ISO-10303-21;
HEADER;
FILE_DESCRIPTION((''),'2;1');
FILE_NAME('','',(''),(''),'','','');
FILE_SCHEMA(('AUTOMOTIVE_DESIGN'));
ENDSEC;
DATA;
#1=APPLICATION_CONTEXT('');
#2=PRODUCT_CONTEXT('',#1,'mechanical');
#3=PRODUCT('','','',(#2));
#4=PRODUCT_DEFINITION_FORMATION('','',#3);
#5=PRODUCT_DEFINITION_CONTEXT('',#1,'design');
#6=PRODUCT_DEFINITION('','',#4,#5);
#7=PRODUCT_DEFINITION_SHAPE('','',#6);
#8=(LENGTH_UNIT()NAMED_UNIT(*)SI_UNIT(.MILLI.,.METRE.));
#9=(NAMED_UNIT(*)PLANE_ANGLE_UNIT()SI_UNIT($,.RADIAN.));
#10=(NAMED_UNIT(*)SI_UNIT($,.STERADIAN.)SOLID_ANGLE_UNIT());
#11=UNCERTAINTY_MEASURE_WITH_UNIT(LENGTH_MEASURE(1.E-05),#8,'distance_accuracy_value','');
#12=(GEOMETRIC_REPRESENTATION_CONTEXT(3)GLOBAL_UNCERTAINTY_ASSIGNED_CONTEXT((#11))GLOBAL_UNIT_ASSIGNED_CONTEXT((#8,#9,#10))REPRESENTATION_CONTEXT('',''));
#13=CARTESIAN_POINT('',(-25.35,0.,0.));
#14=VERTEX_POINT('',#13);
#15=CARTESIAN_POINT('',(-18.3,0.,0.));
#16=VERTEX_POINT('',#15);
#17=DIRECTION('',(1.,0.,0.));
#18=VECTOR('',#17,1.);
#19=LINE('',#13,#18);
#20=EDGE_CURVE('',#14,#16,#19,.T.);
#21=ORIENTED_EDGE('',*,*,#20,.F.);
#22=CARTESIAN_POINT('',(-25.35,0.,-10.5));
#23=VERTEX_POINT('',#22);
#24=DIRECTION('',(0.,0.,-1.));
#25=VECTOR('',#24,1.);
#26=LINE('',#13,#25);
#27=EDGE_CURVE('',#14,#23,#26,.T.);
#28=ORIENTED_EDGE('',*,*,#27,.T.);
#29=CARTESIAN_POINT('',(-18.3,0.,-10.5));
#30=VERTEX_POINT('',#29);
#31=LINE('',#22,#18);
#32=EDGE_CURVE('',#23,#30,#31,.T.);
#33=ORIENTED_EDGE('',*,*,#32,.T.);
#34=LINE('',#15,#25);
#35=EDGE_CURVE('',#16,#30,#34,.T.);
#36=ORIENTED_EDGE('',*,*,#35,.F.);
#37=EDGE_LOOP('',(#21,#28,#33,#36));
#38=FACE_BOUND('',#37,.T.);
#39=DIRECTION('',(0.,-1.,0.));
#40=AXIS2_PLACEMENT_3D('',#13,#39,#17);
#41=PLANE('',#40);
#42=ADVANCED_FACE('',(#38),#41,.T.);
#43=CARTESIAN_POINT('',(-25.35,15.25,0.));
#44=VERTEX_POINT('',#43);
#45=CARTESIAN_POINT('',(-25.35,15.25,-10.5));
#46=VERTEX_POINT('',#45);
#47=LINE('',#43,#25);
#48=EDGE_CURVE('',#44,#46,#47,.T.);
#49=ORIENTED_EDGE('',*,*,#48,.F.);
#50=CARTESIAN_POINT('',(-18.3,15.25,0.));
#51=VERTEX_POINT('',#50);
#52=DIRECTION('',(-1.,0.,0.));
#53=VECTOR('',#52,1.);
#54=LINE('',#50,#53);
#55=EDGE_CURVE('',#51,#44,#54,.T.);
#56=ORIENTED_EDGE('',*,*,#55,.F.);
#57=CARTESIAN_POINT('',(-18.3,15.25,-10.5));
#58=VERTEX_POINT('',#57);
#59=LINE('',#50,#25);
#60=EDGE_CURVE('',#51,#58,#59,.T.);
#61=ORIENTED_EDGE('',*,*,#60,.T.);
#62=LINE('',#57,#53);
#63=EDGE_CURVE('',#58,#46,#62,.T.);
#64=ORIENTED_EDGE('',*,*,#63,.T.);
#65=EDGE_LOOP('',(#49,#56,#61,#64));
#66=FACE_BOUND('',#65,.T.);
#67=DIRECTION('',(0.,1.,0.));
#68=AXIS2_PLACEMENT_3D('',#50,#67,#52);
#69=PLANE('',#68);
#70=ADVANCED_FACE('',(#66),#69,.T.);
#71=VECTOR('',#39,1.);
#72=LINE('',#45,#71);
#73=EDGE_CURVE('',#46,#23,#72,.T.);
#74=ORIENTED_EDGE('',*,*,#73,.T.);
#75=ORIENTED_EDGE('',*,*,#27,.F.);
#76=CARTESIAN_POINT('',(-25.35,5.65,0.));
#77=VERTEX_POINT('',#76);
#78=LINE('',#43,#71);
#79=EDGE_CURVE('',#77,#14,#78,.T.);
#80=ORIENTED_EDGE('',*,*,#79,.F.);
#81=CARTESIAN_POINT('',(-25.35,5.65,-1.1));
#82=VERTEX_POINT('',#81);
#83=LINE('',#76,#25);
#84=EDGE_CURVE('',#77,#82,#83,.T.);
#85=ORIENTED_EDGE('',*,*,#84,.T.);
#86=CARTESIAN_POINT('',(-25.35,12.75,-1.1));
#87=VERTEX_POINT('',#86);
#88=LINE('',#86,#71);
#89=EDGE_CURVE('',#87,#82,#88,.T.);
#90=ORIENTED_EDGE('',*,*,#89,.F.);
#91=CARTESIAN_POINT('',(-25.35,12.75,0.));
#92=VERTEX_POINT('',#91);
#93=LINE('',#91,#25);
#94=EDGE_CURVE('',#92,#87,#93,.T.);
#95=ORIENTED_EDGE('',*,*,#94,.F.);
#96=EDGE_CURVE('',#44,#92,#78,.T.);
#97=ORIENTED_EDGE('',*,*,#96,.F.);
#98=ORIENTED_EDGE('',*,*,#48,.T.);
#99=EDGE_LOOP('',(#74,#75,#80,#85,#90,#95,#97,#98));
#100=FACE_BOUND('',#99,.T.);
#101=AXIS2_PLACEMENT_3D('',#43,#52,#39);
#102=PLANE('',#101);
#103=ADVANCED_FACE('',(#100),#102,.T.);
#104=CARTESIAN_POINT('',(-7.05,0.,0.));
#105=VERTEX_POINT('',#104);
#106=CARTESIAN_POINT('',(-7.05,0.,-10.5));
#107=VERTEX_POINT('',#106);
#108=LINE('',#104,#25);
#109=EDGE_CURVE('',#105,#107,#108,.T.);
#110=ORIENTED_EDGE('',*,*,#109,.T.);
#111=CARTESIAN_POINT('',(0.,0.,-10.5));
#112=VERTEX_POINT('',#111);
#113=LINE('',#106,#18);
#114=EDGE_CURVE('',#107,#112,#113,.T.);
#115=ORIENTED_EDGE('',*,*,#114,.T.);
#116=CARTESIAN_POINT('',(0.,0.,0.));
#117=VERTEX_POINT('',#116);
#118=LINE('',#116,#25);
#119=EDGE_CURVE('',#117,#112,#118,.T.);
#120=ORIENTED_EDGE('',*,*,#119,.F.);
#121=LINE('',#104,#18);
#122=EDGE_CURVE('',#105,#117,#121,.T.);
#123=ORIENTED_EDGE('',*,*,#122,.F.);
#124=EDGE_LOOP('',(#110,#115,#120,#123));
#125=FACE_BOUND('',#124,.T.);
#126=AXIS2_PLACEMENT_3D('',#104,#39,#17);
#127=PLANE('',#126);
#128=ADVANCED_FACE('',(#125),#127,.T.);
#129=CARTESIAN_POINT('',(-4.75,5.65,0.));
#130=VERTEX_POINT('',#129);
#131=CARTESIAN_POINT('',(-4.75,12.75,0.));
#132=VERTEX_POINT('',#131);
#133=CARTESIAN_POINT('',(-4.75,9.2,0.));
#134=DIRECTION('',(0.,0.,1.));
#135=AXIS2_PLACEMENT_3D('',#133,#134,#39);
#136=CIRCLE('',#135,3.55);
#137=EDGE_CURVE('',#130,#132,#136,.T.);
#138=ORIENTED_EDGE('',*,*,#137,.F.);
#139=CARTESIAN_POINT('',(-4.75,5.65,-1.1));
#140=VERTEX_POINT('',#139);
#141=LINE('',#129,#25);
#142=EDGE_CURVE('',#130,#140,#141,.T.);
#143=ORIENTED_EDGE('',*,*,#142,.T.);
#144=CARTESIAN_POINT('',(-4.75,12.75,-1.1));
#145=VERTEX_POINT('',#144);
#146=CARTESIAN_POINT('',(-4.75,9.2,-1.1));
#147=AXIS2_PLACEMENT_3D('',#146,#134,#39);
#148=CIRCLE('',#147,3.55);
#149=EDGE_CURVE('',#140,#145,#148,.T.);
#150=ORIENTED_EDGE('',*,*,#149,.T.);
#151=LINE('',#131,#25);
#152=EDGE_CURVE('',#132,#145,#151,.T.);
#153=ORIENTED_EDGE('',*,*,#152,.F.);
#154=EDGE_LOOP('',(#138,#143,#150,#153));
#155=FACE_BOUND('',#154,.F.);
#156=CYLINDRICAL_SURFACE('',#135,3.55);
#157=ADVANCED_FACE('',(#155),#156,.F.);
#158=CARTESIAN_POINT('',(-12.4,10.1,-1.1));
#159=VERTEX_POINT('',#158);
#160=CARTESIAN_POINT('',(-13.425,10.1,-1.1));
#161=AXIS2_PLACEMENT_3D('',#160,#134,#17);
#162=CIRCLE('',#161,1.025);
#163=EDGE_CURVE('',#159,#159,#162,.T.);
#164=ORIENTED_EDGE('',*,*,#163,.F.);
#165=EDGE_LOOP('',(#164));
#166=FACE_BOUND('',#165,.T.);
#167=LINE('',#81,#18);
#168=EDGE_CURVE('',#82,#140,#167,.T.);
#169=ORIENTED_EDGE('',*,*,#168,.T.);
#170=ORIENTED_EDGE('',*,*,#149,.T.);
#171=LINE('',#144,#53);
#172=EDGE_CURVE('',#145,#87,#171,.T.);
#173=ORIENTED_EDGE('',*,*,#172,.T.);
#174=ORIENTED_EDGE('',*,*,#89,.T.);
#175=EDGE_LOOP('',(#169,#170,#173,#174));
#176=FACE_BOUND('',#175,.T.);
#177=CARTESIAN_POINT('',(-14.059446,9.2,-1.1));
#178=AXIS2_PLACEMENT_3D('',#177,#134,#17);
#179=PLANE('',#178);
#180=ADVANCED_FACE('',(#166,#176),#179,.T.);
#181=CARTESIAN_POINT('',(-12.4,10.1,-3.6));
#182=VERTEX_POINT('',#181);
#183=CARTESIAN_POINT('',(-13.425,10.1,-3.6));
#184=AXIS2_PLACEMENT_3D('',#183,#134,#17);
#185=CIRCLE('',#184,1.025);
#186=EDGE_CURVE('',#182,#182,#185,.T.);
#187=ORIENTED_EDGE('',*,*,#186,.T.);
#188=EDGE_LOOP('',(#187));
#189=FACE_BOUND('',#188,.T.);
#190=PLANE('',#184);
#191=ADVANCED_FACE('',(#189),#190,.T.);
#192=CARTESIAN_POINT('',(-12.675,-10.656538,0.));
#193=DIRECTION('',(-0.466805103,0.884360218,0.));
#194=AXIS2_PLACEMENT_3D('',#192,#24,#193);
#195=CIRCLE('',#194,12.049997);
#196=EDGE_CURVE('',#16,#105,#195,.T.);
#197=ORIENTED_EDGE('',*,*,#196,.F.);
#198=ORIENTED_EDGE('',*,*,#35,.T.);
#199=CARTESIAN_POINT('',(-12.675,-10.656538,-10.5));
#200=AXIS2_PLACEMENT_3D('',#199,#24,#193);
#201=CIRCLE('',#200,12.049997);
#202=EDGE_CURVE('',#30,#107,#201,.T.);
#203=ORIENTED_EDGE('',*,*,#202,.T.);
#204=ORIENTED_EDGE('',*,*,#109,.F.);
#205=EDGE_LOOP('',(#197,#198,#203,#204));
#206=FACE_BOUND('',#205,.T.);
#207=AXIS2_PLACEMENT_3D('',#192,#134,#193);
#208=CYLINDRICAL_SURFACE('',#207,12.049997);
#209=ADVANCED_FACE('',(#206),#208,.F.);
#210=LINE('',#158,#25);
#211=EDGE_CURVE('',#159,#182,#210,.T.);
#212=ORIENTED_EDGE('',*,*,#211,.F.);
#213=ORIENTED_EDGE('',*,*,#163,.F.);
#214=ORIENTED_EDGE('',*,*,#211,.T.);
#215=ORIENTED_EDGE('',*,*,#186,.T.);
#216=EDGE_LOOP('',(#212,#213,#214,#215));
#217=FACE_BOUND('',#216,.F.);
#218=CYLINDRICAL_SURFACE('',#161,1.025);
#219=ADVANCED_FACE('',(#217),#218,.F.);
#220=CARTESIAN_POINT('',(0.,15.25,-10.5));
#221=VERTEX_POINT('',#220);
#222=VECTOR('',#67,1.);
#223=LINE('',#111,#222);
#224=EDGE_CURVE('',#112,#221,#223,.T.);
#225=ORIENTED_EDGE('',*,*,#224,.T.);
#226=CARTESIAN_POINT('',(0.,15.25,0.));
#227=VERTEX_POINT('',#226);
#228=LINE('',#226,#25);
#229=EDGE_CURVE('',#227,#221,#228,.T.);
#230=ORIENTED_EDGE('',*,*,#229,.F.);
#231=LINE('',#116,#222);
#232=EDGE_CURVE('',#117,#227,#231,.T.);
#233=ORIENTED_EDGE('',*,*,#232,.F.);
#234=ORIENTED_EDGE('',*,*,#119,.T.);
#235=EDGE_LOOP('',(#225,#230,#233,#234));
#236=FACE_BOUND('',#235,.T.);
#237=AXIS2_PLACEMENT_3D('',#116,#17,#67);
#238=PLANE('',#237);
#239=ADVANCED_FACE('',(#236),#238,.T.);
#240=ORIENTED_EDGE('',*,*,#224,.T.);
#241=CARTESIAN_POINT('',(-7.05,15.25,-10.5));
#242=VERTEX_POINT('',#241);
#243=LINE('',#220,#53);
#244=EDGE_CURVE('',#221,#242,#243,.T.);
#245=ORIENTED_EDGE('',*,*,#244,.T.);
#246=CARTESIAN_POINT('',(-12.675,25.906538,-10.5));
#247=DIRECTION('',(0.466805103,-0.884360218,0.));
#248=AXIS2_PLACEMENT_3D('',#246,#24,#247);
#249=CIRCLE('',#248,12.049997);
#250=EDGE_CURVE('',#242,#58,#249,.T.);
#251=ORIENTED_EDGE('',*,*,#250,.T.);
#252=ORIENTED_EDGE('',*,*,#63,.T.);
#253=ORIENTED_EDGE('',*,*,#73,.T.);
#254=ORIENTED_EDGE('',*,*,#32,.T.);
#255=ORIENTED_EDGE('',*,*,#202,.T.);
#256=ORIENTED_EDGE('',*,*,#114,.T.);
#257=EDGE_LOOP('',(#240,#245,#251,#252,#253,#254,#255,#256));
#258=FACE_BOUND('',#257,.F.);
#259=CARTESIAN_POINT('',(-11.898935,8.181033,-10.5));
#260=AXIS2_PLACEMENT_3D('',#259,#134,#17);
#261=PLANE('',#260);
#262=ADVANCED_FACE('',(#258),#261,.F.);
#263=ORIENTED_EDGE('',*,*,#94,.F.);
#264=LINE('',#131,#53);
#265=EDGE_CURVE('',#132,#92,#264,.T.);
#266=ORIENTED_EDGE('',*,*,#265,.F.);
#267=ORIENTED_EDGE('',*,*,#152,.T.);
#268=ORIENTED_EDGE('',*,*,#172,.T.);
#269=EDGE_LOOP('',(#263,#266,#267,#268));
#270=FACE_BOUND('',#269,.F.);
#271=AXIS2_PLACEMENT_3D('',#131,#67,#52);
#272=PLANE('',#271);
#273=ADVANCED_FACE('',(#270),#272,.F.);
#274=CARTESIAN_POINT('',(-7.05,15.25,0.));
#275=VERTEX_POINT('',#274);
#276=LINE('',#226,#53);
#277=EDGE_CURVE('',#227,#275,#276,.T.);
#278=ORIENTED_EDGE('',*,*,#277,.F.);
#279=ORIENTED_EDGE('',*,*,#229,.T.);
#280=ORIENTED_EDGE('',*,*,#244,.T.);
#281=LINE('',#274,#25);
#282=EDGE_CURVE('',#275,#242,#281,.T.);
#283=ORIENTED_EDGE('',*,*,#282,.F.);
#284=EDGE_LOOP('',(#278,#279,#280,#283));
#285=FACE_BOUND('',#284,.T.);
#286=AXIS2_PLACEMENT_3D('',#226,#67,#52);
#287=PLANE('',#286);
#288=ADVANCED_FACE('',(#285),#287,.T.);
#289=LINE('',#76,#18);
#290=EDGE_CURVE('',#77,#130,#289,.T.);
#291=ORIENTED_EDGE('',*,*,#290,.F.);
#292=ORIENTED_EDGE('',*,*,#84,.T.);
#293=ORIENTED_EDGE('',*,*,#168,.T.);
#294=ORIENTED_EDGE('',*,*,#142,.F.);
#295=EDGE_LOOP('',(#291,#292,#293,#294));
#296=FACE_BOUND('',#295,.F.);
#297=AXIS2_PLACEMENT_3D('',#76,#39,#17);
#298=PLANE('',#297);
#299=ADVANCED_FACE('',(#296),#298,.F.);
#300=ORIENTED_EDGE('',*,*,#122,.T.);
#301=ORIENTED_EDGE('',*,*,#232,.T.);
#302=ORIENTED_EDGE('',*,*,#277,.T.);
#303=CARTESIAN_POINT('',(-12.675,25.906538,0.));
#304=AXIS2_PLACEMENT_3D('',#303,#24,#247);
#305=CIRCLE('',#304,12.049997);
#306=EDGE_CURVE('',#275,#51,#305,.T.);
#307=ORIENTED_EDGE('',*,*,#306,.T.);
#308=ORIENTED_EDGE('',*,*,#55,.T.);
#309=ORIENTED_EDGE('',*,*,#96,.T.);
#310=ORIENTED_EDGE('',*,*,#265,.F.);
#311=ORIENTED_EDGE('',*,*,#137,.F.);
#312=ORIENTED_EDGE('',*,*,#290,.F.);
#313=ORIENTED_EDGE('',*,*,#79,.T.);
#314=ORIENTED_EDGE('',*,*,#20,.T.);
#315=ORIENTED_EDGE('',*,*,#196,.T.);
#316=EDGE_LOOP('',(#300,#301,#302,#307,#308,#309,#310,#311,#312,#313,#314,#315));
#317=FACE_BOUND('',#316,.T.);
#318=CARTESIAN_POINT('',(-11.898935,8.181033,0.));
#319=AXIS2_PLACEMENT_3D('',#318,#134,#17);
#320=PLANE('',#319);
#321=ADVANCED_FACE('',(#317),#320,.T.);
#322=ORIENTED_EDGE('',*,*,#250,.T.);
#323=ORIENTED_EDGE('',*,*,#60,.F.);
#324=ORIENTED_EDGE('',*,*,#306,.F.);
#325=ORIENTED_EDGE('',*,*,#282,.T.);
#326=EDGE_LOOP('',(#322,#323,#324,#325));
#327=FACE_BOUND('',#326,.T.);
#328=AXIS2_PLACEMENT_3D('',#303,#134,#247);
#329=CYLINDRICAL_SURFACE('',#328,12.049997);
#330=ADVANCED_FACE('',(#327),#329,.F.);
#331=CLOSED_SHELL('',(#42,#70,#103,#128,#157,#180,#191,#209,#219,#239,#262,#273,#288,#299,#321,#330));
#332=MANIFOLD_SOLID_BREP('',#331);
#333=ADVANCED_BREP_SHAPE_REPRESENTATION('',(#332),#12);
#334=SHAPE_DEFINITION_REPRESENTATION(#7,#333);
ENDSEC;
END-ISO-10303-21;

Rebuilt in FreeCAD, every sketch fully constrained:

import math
import FreeCAD as App
import Part
import Sketcher

V = App.Vector
Q = App.Units.Quantity

doc = App.newDocument("Part")
params = doc.addObject("Spreadsheet::Sheet", "Params")
for row, (alias, value) in enumerate([
    ("sketch1_width", "7.05 mm"),
    ("sketch1_height", "15.25 mm"),
    ("pad1_length", "10.5 mm"),
    ("sketch2_radius", "3.55 mm"),
    ("sketch2_width", "20.6 mm"),
    ("pocket1_length", "1.1 mm"),
    ("sketch3_diameter", "2.05 mm"),
    ("pocket2_length", "2.5 mm"),
], start=1):
    params.set(f"A{row}", alias)
    params.set(f"B{row}", "=" + value)
    params.setAlias(f"B{row}", alias)

body = doc.addObject("PartDesign::Body", "Body")

sketch1 = doc.addObject("Sketcher::SketchObject", "Sketch")
body.addObject(sketch1)
sketch1.AttachmentSupport = (doc.XY_Plane, [""])
sketch1.MapMode = "FlatFace"
sketch1.addGeometry(Part.LineSegment(V(-7, 0, 0), V(0, 0, 0)), False)
sketch1.addGeometry(Part.LineSegment(V(0, 0, 0), V(0, 15, 0)), False)
sketch1.addGeometry(Part.LineSegment(V(0, 15, 0), V(-7, 15, 0)), False)
sketch1.addGeometry(Part.ArcOfCircle(Part.Circle(V(-13, 26, 0), V(0, 0, 1), 12), math.radians(-118), math.radians(-62)), False)
sketch1.addGeometry(Part.LineSegment(V(-18, 15, 0), V(-25, 15, 0)), False)
sketch1.addGeometry(Part.LineSegment(V(-25, 15, 0), V(-25, 0, 0)), False)
sketch1.addGeometry(Part.LineSegment(V(-25, 0, 0), V(-18, 0, 0)), False)
sketch1.addGeometry(Part.ArcOfCircle(Part.Circle(V(-13, -11, 0), V(0, 0, 1), 12), math.radians(62), math.radians(118)), False)
sketch1.addConstraint(Sketcher.Constraint("Coincident", 0, 2, 1, 1))
sketch1.addConstraint(Sketcher.Constraint("Coincident", 1, 2, 2, 1))
sketch1.addConstraint(Sketcher.Constraint("Coincident", 2, 2, 3, 2))
sketch1.addConstraint(Sketcher.Constraint("Coincident", 3, 1, 4, 1))
sketch1.addConstraint(Sketcher.Constraint("Coincident", 4, 2, 5, 1))
sketch1.addConstraint(Sketcher.Constraint("Coincident", 5, 2, 6, 1))
sketch1.addConstraint(Sketcher.Constraint("Coincident", 6, 2, 7, 2))
sketch1.addConstraint(Sketcher.Constraint("Coincident", 7, 1, 0, 1))
sketch1.addConstraint(Sketcher.Constraint("Horizontal", 0))
sketch1.addConstraint(Sketcher.Constraint("Vertical", 1))
sketch1.addConstraint(Sketcher.Constraint("Horizontal", 2))
sketch1.addConstraint(Sketcher.Constraint("Horizontal", 4))
sketch1.addConstraint(Sketcher.Constraint("Vertical", 5))
sketch1.addConstraint(Sketcher.Constraint("Horizontal", 6))
sketch1.addConstraint(Sketcher.Constraint("Coincident", 0, 2, -1, 1))
sketch1.addConstraint(Sketcher.Constraint("Equal", 3, 7))
sketch1.addConstraint(Sketcher.Constraint("PointOnObject", 5, 2, -1))
sketch1.addConstraint(Sketcher.Constraint("Horizontal", 2, 2, 3, 1))
sketch1.addConstraint(Sketcher.Constraint("Vertical", 3, 3, 7, 3))
sketch1.addConstraint(Sketcher.Constraint("Vertical", 3, 1, 6, 2))
sketch1.addConstraint(Sketcher.Constraint("Equal", 2, 4))
sketch1.addConstraint(Sketcher.Constraint("DistanceX", 0, 1, 0, 2, Q("7.05 mm")))
sketch1.addConstraint(Sketcher.Constraint("DistanceY", 1, 1, 1, 2, Q("15.25 mm")))
sketch1.addConstraint(Sketcher.Constraint("DistanceX", 3, 1, -1, 1, Q("18.3 mm")))
sketch1.addConstraint(Sketcher.Constraint("Radius", 3, Q("12.049997 mm")))
sketch1.setExpression("Constraints[21]", "Params.sketch1_width")
sketch1.setExpression("Constraints[22]", "Params.sketch1_height")
pad1 = doc.addObject("PartDesign::Pad", "Pad")
body.addObject(pad1)
pad1.Profile = sketch1
pad1.setExpression("Length", "Params.pad1_length")
pad1.Reversed = True

sketch2 = doc.addObject("Sketcher::SketchObject", "Sketch001")
body.addObject(sketch2)
sketch2.AttachmentSupport = (doc.XY_Plane, [""])
sketch2.MapMode = "FlatFace"
sketch2.addGeometry(Part.LineSegment(V(-25.4, 12.8, 0), V(-25.4, 5.7, 0)), False)
sketch2.addGeometry(Part.LineSegment(V(-25.4, 5.7, 0), V(-4.8, 5.7, 0)), False)
sketch2.addGeometry(Part.ArcOfCircle(Part.Circle(V(-4.8, 9.2, 0), V(0, 0, 1), 3.5), math.radians(-90), math.radians(90)), False)
sketch2.addGeometry(Part.LineSegment(V(-4.8, 12.8, 0), V(-25.4, 12.8, 0)), False)
sketch2.addConstraint(Sketcher.Constraint("Coincident", 0, 2, 1, 1))
sketch2.addConstraint(Sketcher.Constraint("Tangent", 1, 2, 2, 1))
sketch2.addConstraint(Sketcher.Constraint("Tangent", 2, 2, 3, 1))
sketch2.addConstraint(Sketcher.Constraint("Coincident", 3, 2, 0, 1))
sketch2.addConstraint(Sketcher.Constraint("Vertical", 0))
sketch2.addConstraint(Sketcher.Constraint("Horizontal", 1))
sketch2.addConstraint(Sketcher.Constraint("Horizontal", 3))
sketch2.addConstraint(Sketcher.Constraint("Radius", 2, Q("3.55 mm")))
sketch2.addConstraint(Sketcher.Constraint("DistanceX", 1, 1, 1, 2, Q("20.6 mm")))
sketch2.addConstraint(Sketcher.Constraint("DistanceY", -1, 1, 2, 3, Q("9.2 mm")))
sketch2.addConstraint(Sketcher.Constraint("DistanceX", 2, 3, -1, 1, Q("4.75 mm")))
sketch2.setExpression("Constraints[7]", "Params.sketch2_radius")
sketch2.setExpression("Constraints[8]", "Params.sketch2_width")
pocket1 = doc.addObject("PartDesign::Pocket", "Pocket")
body.addObject(pocket1)
pocket1.Profile = sketch2
pocket1.setExpression("Length", "Params.pocket1_length")

sketch3 = doc.addObject("Sketcher::SketchObject", "Sketch002")
body.addObject(sketch3)
sketch3.AttachmentSupport = (doc.XY_Plane, [""])
sketch3.MapMode = "FlatFace"
sketch3.AttachmentOffset = App.Placement(V(0, 0, -1.1), App.Rotation())
sketch3.addGeometry(Part.Circle(V(-13.4, 10.1, 0), V(0, 0, 1), 1), False)
sketch3.addConstraint(Sketcher.Constraint("Diameter", 0, Q("2.05 mm")))
sketch3.addConstraint(Sketcher.Constraint("DistanceY", -1, 1, 0, 3, Q("10.1 mm")))
sketch3.addConstraint(Sketcher.Constraint("DistanceX", 0, 3, -1, 1, Q("13.425 mm")))
sketch3.setExpression("Constraints[0]", "Params.sketch3_diameter")
pocket2 = doc.addObject("PartDesign::Pocket", "Pocket001")
body.addObject(pocket2)
pocket2.Profile = sketch3
pocket2.setExpression("Length", "Params.pocket2_length")

doc.recompute()
